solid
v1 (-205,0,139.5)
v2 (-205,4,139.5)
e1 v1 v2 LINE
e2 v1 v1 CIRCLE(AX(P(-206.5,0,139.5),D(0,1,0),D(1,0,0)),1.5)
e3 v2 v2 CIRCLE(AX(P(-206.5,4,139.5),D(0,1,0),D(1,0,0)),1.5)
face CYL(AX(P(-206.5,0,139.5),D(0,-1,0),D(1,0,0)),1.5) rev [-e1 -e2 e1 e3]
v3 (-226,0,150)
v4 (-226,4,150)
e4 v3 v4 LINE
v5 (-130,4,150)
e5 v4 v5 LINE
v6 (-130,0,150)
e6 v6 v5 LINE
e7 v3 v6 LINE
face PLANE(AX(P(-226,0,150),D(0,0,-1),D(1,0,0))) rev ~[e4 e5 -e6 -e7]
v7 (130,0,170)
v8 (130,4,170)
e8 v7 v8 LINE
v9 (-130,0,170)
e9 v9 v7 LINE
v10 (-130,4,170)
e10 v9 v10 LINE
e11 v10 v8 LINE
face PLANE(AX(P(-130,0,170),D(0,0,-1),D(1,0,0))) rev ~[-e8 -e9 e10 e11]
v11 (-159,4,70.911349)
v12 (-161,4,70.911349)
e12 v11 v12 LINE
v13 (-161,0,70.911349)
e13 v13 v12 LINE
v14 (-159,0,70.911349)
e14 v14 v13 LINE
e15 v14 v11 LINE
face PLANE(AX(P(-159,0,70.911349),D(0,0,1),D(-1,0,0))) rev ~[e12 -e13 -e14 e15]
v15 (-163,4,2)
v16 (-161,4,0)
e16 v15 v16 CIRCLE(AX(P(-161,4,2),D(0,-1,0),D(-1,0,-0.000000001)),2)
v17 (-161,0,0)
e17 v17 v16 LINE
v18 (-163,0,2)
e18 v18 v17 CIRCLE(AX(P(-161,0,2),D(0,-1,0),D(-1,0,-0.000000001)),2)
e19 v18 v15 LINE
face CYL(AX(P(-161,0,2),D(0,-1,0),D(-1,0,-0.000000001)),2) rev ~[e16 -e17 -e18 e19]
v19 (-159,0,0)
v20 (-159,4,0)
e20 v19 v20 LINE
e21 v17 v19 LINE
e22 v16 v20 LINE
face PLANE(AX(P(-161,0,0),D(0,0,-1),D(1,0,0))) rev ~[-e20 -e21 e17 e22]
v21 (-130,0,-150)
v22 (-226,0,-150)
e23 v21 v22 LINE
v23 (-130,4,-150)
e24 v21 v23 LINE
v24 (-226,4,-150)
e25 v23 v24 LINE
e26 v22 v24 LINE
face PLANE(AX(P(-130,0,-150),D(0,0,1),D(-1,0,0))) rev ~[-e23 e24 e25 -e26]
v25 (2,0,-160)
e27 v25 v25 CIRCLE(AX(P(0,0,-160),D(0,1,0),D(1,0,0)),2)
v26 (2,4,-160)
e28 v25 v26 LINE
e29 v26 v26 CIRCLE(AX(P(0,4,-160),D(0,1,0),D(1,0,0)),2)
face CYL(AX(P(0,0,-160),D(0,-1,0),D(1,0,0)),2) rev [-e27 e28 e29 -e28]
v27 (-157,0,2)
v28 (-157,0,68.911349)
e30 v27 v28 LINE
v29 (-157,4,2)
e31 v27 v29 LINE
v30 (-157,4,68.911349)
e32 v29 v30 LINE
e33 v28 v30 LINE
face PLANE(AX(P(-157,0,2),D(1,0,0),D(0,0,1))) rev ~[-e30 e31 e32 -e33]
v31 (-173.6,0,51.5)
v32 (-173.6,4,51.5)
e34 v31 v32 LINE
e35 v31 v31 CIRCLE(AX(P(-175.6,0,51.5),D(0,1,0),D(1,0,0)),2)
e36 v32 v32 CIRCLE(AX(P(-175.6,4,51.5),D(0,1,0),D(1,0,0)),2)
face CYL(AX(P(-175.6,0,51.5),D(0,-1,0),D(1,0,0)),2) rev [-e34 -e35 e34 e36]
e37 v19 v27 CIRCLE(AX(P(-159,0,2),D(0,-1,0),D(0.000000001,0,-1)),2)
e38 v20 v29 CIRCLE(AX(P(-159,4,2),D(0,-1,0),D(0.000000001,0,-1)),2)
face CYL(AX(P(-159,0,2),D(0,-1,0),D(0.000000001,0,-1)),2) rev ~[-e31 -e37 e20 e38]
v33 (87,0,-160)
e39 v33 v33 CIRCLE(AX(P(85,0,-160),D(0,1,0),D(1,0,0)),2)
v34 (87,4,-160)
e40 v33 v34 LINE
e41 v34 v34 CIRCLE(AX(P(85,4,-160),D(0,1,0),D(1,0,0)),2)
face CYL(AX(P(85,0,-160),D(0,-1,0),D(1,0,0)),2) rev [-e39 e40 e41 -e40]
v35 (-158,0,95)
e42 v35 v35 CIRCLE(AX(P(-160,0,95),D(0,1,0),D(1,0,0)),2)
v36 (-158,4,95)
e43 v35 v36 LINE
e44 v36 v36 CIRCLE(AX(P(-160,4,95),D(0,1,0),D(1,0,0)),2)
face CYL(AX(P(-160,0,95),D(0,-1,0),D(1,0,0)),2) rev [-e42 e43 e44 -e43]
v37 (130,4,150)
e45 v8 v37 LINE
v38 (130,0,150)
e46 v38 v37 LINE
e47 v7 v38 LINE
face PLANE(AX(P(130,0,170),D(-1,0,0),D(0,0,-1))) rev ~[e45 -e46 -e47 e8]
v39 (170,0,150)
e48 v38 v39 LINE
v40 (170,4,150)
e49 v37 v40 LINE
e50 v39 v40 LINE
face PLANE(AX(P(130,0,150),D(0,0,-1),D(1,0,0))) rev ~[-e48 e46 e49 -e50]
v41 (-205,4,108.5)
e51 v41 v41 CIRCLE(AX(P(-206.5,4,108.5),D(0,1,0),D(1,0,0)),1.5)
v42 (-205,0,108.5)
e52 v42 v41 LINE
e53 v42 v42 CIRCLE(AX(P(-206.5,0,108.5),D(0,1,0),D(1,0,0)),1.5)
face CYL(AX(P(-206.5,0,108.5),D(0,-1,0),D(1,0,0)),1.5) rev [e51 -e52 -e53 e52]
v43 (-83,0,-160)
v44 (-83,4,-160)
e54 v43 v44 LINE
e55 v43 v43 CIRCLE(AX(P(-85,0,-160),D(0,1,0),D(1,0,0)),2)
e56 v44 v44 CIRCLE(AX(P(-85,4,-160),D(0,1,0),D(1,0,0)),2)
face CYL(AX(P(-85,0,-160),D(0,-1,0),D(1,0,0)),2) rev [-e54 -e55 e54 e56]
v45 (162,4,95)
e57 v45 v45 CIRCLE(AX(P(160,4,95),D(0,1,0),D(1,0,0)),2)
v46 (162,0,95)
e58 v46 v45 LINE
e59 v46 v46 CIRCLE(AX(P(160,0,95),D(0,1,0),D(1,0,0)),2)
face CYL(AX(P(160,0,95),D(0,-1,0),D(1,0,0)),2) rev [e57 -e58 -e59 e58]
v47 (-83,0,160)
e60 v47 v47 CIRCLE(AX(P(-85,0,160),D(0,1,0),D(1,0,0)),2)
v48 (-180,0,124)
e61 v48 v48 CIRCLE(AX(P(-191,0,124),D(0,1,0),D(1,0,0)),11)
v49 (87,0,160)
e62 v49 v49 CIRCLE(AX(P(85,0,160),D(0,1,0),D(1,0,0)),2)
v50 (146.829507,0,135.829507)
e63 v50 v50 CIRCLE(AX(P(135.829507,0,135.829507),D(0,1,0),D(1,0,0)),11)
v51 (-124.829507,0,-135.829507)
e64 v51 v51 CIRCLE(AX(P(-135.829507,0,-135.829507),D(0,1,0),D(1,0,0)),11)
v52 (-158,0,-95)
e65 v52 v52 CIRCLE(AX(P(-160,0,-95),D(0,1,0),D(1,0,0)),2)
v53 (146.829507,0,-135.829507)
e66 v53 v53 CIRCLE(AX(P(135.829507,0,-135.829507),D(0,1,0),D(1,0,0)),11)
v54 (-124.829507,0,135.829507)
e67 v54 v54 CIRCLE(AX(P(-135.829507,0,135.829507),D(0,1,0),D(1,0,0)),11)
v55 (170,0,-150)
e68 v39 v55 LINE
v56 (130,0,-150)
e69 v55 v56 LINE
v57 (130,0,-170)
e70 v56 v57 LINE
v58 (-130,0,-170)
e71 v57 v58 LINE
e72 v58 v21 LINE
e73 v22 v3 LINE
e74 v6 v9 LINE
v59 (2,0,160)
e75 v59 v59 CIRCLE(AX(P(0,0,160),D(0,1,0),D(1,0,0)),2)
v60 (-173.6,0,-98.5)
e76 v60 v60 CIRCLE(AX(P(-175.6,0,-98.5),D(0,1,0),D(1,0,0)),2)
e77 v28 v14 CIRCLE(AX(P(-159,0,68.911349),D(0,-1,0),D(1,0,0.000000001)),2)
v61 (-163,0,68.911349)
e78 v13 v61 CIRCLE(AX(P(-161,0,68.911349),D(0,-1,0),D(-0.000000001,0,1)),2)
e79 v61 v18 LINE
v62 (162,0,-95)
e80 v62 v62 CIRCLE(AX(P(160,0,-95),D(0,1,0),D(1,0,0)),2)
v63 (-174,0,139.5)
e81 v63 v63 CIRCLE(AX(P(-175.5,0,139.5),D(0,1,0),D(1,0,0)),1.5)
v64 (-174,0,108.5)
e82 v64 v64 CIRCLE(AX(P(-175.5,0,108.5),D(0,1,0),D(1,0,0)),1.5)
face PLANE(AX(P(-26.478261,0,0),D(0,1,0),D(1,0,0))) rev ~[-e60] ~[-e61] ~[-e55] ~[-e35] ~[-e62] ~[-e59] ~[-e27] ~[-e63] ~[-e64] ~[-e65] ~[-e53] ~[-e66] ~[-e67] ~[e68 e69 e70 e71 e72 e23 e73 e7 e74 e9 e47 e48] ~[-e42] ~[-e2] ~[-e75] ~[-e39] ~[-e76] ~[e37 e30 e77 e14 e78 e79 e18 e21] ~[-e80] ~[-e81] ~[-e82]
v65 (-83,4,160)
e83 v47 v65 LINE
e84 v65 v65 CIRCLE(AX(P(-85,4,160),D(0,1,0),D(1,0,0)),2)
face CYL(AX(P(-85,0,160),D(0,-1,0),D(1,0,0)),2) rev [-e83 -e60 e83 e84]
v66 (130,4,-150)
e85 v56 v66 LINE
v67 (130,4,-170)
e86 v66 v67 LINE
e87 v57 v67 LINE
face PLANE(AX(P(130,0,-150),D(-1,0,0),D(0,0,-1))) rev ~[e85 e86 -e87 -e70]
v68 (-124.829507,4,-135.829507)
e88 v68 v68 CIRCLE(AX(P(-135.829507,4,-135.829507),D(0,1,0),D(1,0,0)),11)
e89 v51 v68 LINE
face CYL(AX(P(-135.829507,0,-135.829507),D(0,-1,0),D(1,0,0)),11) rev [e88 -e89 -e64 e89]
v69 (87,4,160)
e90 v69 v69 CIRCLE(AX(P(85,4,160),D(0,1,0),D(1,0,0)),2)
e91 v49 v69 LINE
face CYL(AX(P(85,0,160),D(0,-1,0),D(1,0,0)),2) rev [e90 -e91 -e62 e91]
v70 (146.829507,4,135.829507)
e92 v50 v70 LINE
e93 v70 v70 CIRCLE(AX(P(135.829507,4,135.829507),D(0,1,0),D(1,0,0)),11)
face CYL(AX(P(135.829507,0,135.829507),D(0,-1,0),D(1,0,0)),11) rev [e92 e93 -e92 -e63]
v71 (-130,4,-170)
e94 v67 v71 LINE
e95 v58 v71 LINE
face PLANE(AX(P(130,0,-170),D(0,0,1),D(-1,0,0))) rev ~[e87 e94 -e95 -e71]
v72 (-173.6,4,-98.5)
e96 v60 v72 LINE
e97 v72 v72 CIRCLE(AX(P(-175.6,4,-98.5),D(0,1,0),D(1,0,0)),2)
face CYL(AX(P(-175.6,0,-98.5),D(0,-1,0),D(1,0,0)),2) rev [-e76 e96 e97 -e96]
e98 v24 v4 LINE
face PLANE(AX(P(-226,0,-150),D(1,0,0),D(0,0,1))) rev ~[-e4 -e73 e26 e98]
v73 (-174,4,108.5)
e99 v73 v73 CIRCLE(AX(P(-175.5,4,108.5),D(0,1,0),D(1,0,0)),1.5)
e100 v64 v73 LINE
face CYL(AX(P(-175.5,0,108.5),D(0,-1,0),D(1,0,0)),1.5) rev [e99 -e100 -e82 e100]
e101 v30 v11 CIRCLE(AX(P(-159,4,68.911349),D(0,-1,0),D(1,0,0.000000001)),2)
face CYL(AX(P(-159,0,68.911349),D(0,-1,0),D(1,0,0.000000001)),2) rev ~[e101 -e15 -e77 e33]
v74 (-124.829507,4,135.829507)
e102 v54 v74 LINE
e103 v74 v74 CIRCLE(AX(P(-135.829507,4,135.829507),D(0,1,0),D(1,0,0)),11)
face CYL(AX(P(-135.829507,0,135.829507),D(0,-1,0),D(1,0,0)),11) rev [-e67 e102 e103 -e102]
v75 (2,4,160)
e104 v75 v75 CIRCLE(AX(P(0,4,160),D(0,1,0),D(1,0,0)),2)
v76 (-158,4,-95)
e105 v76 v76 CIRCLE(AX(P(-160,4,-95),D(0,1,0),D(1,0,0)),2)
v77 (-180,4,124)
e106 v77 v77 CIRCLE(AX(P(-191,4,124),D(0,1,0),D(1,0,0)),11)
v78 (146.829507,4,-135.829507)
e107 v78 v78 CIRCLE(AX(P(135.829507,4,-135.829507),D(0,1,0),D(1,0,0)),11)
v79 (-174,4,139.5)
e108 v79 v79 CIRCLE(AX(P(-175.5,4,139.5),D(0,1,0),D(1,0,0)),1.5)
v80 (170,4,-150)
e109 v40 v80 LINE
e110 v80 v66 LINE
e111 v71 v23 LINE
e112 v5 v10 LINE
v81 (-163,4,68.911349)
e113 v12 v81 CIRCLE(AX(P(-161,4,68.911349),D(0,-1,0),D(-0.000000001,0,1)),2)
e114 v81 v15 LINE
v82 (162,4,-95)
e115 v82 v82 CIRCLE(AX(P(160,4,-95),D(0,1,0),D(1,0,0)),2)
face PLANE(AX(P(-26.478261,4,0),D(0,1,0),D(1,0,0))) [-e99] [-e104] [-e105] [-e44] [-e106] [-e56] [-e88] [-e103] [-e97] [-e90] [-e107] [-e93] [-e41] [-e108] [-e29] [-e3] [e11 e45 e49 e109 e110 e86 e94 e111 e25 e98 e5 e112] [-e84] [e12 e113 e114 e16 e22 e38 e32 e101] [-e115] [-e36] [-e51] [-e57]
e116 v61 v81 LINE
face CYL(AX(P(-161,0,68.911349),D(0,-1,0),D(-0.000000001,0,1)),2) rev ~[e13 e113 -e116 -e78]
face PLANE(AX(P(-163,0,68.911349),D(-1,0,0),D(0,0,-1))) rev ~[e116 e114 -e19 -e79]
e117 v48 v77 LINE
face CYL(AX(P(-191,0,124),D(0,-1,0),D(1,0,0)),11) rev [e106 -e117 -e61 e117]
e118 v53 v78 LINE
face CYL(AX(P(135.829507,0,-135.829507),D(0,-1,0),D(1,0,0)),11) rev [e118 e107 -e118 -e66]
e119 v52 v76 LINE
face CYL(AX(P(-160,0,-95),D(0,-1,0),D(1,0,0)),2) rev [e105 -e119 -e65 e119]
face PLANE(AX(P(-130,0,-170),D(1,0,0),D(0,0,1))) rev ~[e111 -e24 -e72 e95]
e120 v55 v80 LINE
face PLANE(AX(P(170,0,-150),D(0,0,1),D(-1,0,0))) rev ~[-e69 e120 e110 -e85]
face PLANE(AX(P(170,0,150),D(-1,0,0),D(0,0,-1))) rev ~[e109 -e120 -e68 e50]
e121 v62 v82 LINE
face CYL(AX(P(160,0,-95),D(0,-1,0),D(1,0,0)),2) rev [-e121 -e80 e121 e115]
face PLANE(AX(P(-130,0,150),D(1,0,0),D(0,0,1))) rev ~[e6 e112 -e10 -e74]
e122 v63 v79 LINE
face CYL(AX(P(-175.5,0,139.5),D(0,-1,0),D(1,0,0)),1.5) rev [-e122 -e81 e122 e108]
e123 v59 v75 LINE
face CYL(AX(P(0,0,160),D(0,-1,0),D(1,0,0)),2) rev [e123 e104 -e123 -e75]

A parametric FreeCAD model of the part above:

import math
import FreeCAD as App
import Part
import Sketcher
from FreeCAD import Vector
Q = App.Units.Quantity

doc = App.newDocument("Part")
params = doc.addObject("Spreadsheet::Sheet", "Params")
for row, (alias, value) in enumerate([
    ("sketch1_diameter", "3 mm"),
    ("sketch1_diameter2", "22 mm"),
    ("sketch1_diameter3", "4 mm"),
    ("sketch1_width", "40 mm"),
    ("sketch1_width2", "260 mm"),
    ("pad1_length", "4 mm"),
], start=1):
    params.set(f"A{row}", alias)
    params.set(f"B{row}", "=" + value)
    params.setAlias(f"B{row}", alias)

body = doc.addObject("PartDesign::Body", "Body")

# Sketch on XZ plane
sketch1 = doc.addObject("Sketcher::SketchObject", "Sketch")
body.addObject(sketch1)
sketch1.AttachmentSupport = (doc.XZ_Plane, [""])
sketch1.MapMode = "FlatFace"
sketch1.addGeometry([
    Part.LineSegment(Vector(130, 150, 0), Vector(170, 150, 0)),  # 0
    Part.LineSegment(Vector(170, 150, 0), Vector(170, -150, 0)),  # 1
    Part.LineSegment(Vector(170, -150, 0), Vector(130, -150, 0)),  # 2
    Part.LineSegment(Vector(130, -150, 0), Vector(130, -170, 0)),  # 3
    Part.LineSegment(Vector(130, -170, 0), Vector(-130, -170, 0)),  # 4
    Part.LineSegment(Vector(-130, -170, 0), Vector(-130, -150, 0)),  # 5
    Part.LineSegment(Vector(-130, -150, 0), Vector(-226, -150, 0)),  # 6
    Part.LineSegment(Vector(-226, -150, 0), Vector(-226, 150, 0)),  # 7
    Part.LineSegment(Vector(-226, 150, 0), Vector(-130, 150, 0)),  # 8
    Part.LineSegment(Vector(-130, 150, 0), Vector(-130, 170, 0)),  # 9
    Part.LineSegment(Vector(-130, 170, 0), Vector(130, 170, 0)),  # 10
    Part.LineSegment(Vector(130, 170, 0), Vector(130, 150, 0)),  # 11
    Part.Circle(Vector(-206.5, 139.5, 0), Vector(0, 0, 1), 1.5),  # 12
    Part.Circle(Vector(-191, 124, 0), Vector(0, 0, 1), 11),  # 13
    Part.Circle(Vector(-175.5, 139.5, 0), Vector(0, 0, 1), 1.5),  # 14
    Part.Circle(Vector(-135.8, 135.8, 0), Vector(0, 0, 1), 11),  # 15
    Part.Circle(Vector(-206.5, 108.5, 0), Vector(0, 0, 1), 1.5),  # 16
    Part.Circle(Vector(-175.5, 108.5, 0), Vector(0, 0, 1), 1.5),  # 17
    Part.Circle(Vector(-160, 95, 0), Vector(0, 0, 1), 2),  # 18
    Part.Circle(Vector(-85, 160, 0), Vector(0, 0, 1), 2),  # 19
    Part.Circle(Vector(-175.6, 51.5, 0), Vector(0, 0, 1), 2),  # 20
    Part.ArcOfCircle(Part.Circle(Vector(-161, 2, 0), Vector(0, 0, 1), 2), math.radians(-180), math.radians(-90)),  # 21
    Part.LineSegment(Vector(-161, 0, 0), Vector(-159, 0, 0)),  # 22
    Part.ArcOfCircle(Part.Circle(Vector(-159, 2, 0), Vector(0, 0, 1), 2), math.radians(-90), math.radians(0)),  # 23
    Part.LineSegment(Vector(-157, 2, 0), Vector(-157, 68.9, 0)),  # 24
    Part.ArcOfCircle(Part.Circle(Vector(-159, 68.9, 0), Vector(0, 0, 1), 2), math.radians(0), math.radians(90)),  # 25
    Part.LineSegment(Vector(-159, 70.9, 0), Vector(-161, 70.9, 0)),  # 26
    Part.ArcOfCircle(Part.Circle(Vector(-161, 68.9, 0), Vector(0, 0, 1), 2), math.radians(90), math.radians(180)),  # 27
    Part.LineSegment(Vector(-163, 68.9, 0), Vector(-163, 2, 0)),  # 28
    Part.Circle(Vector(0, 160, 0), Vector(0, 0, 1), 2),  # 29
    Part.Circle(Vector(85, 160, 0), Vector(0, 0, 1), 2),  # 30
    Part.Circle(Vector(135.8, 135.8, 0), Vector(0, 0, 1), 11),  # 31
    Part.Circle(Vector(160, 95, 0), Vector(0, 0, 1), 2),  # 32
    Part.Circle(Vector(-175.6, -98.5, 0), Vector(0, 0, 1), 2),  # 33
    Part.Circle(Vector(-160, -95, 0), Vector(0, 0, 1), 2),  # 34
    Part.Circle(Vector(-135.8, -135.8, 0), Vector(0, 0, 1), 11),  # 35
    Part.Circle(Vector(-85, -160, 0), Vector(0, 0, 1), 2),  # 36
    Part.Circle(Vector(0, -160, 0), Vector(0, 0, 1), 2),  # 37
    Part.Circle(Vector(160, -95, 0), Vector(0, 0, 1), 2),  # 38
    Part.Circle(Vector(85, -160, 0), Vector(0, 0, 1), 2),  # 39
    Part.Circle(Vector(135.8, -135.8, 0), Vector(0, 0, 1), 11),  # 40
], False)
sketch1.addConstraint([
    Sketcher.Constraint("Coincident", 0, 2, 1, 1),
    Sketcher.Constraint("Coincident", 1, 2, 2, 1),
    Sketcher.Constraint("Coincident", 2, 2, 3, 1),
    Sketcher.Constraint("Coincident", 3, 2, 4, 1),
    Sketcher.Constraint("Coincident", 4, 2, 5, 1),
    Sketcher.Constraint("Coincident", 5, 2, 6, 1),
    Sketcher.Constraint("Coincident", 6, 2, 7, 1),
    Sketcher.Constraint("Coincident", 7, 2, 8, 1),
    Sketcher.Constraint("Coincident", 8, 2, 9, 1),
    Sketcher.Constraint("Coincident", 9, 2, 10, 1),
    Sketcher.Constraint("Coincident", 10, 2, 11, 1),
    Sketcher.Constraint("Coincident", 11, 2, 0, 1),
    Sketcher.Constraint("Tangent", 21, 2, 22, 1),
    Sketcher.Constraint("Tangent", 22, 2, 23, 1),
    Sketcher.Constraint("Tangent", 23, 2, 24, 1),
    Sketcher.Constraint("Tangent", 24, 2, 25, 1),
    Sketcher.Constraint("Tangent", 25, 2, 26, 1),
    Sketcher.Constraint("Tangent", 26, 2, 27, 1),
    Sketcher.Constraint("Tangent", 27, 2, 28, 1),
    Sketcher.Constraint("Tangent", 28, 2, 21, 1),
    Sketcher.Constraint("Horizontal", 0),
    Sketcher.Constraint("Vertical", 1),
    Sketcher.Constraint("Horizontal", 2),
    Sketcher.Constraint("Vertical", 3),
    Sketcher.Constraint("Horizontal", 4),
    Sketcher.Constraint("Vertical", 5),
    Sketcher.Constraint("Horizontal", 6),
    Sketcher.Constraint("Vertical", 7),
    Sketcher.Constraint("Horizontal", 8),
    Sketcher.Constraint("Vertical", 9),
    Sketcher.Constraint("Horizontal", 10),
    Sketcher.Constraint("Vertical", 11),
    Sketcher.Constraint("Horizontal", 22),
    Sketcher.Constraint("Vertical", 24),
    Sketcher.Constraint("Horizontal", 26),
    Sketcher.Constraint("Vertical", 28),
    Sketcher.Constraint("Equal", 12, 14),
    Sketcher.Constraint("Equal", 13, 15),
    Sketcher.Constraint("Equal", 14, 16),
    Sketcher.Constraint("Equal", 16, 17),
    Sketcher.Constraint("Equal", 18, 19),
    Sketcher.Constraint("Equal", 19, 20),
    Sketcher.Constraint("Equal", 20, 21),
    Sketcher.Constraint("Equal", 21, 23),
    Sketcher.Constraint("Equal", 23, 25),
    Sketcher.Constraint("Equal", 25, 27),
    Sketcher.Constraint("Equal", 27, 29),
    Sketcher.Constraint("Equal", 29, 30),
    Sketcher.Constraint("Equal", 15, 31),
    Sketcher.Constraint("Equal", 30, 32),
    Sketcher.Constraint("Equal", 32, 33),
    Sketcher.Constraint("Equal", 33, 34),
    Sketcher.Constraint("Equal", 31, 35),
    Sketcher.Constraint("Equal", 34, 36),
    Sketcher.Constraint("Equal", 36, 37),
    Sketcher.Constraint("Equal", 37, 38),
    Sketcher.Constraint("Equal", 38, 39),
    Sketcher.Constraint("Equal", 35, 40),
    Sketcher.Constraint("Symmetric", 32, 3, 34, 3, -1, 1),
    Sketcher.Constraint("Symmetric", 31, 3, 35, 3, -1, 1),
    Sketcher.Constraint("Symmetric", 30, 3, 36, 3, -1, 1),
    Sketcher.Constraint("Symmetric", 29, 3, 37, 3, -1, 1),
    Sketcher.Constraint("Symmetric", 18, 3, 38, 3, -1, 1),
    Sketcher.Constraint("Symmetric", 19, 3, 39, 3, -1, 1),
    Sketcher.Constraint("Symmetric", 15, 3, 40, 3, -1, 1),
    Sketcher.Constraint("Symmetric", 2, 2, 8, 2, -1, 1),
    Sketcher.Constraint("Symmetric", 4, 2, 10, 2, -1, 1),
    Sketcher.Constraint("Symmetric", 19, 3, 30, 3, -2),
    Sketcher.Constraint("Symmetric", 15, 3, 31, 3, -2),
    Sketcher.Constraint("Symmetric", 18, 3, 32, 3, -2),
    Sketcher.Constraint("Symmetric", 2, 2, 5, 2, -2),
    Sketcher.Constraint("PointOnObject", 29, 3, -2),
    Sketcher.Constraint("PointOnObject", 21, 2, -1),
    Sketcher.Constraint("Horizontal", 12, 3, 14, 3),
    Sketcher.Constraint("Horizontal", 16, 3, 17, 3),
    Sketcher.Constraint("Horizontal", 19, 3, 29, 3),
    Sketcher.Constraint("Horizontal", 0, 2, 7, 2),
    Sketcher.Constraint("Vertical", 12, 3, 16, 3),
    Sketcher.Constraint("Vertical", 14, 3, 17, 3),
    Sketcher.Constraint("Vertical", 20, 3, 33, 3),
    Sketcher.Constraint("Diameter", 12, Q("3 mm")),
    Sketcher.Constraint("Diameter", 13, Q("22 mm")),
    Sketcher.Constraint("Diameter", 18, Q("4 mm")),
    Sketcher.Constraint("DistanceX", 0, 1, 0, 2, Q("40 mm")),
    Sketcher.Constraint("DistanceX", 4, 2, 4, 1, Q("260 mm")),
    Sketcher.Constraint("DistanceX", 6, 2, 6, 1, Q("96 mm")),
    Sketcher.Constraint("DistanceX", 22, 1, 22, 2, Q("2 mm")),
    Sketcher.Constraint("DistanceY", 1, 2, 1, 1, Q("300 mm")),
    Sketcher.Constraint("DistanceY", 3, 2, 3, 1, Q("20 mm")),
    Sketcher.Constraint("DistanceX", 13, 3, -1, 1, Q("191 mm")),
    Sketcher.Constraint("DistanceY", -1, 1, 13, 3, Q("124 mm")),
    Sketcher.Constraint("DistanceX", 18, 3, -1, 1, Q("160 mm")),
    Sketcher.Constraint("DistanceY", -1, 1, 18, 3, Q("95 mm")),
    Sketcher.Constraint("DistanceX", 19, 3, -1, 1, Q("85 mm")),
    Sketcher.Constraint("DistanceY", -1, 1, 19, 3, Q("160 mm")),
    Sketcher.Constraint("DistanceX", 21, 3, -1, 1, Q("161 mm")),
    Sketcher.Constraint("DistanceX", 12, 3, 14, 3, Q("31 mm")),
    Sketcher.Constraint("DistanceY", 16, 3, 12, 3, Q("31 mm")),
    Sketcher.Constraint("DistanceY", 20, 3, 17, 3, Q("57 mm")),
    Sketcher.Constraint("DistanceY", 33, 3, 20, 3, Q("150 mm")),
    Sketcher.Constraint("DistanceX", 12, 3, -1, 1, Q("206.5 mm")),
    Sketcher.Constraint("DistanceY", -1, 1, 12, 3, Q("139.5 mm")),
    Sketcher.Constraint("DistanceX", 20, 3, -1, 1, Q("175.6 mm")),
    Sketcher.Constraint("DistanceY", 24, 1, 24, 2, Q("66.911349 mm")),
    Sketcher.Constraint("DistanceX", 15, 3, -1, 1, Q("135.829507 mm")),
    Sketcher.Constraint("DistanceY", -1, 1, 15, 3, Q("135.829507 mm")),
])
sketch1.setExpression("Constraints[80]", "Params.sketch1_diameter")
sketch1.setExpression("Constraints[81]", "Params.sketch1_diameter2")
sketch1.setExpression("Constraints[82]", "Params.sketch1_diameter3")
sketch1.setExpression("Constraints[83]", "Params.sketch1_width")
sketch1.setExpression("Constraints[84]", "Params.sketch1_width2")
pad1 = doc.addObject("PartDesign::Pad", "Pad")
body.addObject(pad1)
pad1.Profile = sketch1
pad1.setExpression("Length", "Params.pad1_length")
pad1.Reversed = True

doc.recompute()
